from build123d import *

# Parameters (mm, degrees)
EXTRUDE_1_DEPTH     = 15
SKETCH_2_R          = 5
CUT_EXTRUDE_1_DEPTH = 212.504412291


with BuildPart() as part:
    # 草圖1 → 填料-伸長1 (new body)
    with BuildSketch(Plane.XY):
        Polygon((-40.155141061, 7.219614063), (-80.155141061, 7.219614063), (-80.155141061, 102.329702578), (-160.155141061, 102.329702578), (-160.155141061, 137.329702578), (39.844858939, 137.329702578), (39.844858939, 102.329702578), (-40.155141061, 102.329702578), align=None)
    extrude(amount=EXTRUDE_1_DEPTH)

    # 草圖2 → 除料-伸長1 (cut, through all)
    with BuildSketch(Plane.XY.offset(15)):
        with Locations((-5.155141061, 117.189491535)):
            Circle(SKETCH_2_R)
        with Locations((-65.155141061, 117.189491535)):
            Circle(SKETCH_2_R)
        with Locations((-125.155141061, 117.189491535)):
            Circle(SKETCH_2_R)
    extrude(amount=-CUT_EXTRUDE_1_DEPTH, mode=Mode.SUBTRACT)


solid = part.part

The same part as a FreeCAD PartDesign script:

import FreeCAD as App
import Part
import Sketcher
from FreeCAD import Vector
Q = App.Units.Quantity


def add_polygon(sketch, points):
    """Adds a closed chain of lines whose ends are joined by coincident constraints."""
    first, n = sketch.GeometryCount, len(points)
    for a, b in zip(points, points[1:] + points[:1]):
        sketch.addGeometry(Part.LineSegment(App.Vector(*a, 0), App.Vector(*b, 0)), False)
    for i in range(n):
        sketch.addConstraint(Sketcher.Constraint("Coincident", first + i, 2, first + (i + 1) % n, 1))

doc = App.newDocument("Part")
params = doc.addObject("Spreadsheet::Sheet", "Params")
for row, (alias, value) in enumerate([
    ("sketch1_width", "40 mm"),
    ("sketch1_width2", "80 mm"),
    ("sketch1_height", "35 mm"),
    ("pad1_length", "15 mm"),
    ("sketch2_diameter", "10 mm"),
], start=1):
    params.set(f"A{row}", alias)
    params.set(f"B{row}", "=" + value)
    params.setAlias(f"B{row}", alias)

body = doc.addObject("PartDesign::Body", "Body")

sketch1 = body.newObject("Sketcher::SketchObject", "Sketch")
sketch1.AttachmentSupport = (doc.getObject("XY_Plane"), [""])
sketch1.MapMode = "FlatFace"
add_polygon(sketch1, [(-80.155141, 7.219614), (-40.155141, 7.219614), (-40.155141, 102.329703), (39.844859, 102.329703), (39.844859, 137.329703), (-160.155141, 137.329703), (-160.155141, 102.329703), (-80.155141, 102.329703)])
sketch1.addConstraint(Sketcher.Constraint("Horizontal", 0))
sketch1.addConstraint(Sketcher.Constraint("Vertical", 1))
sketch1.addConstraint(Sketcher.Constraint("Horizontal", 2))
sketch1.addConstraint(Sketcher.Constraint("Vertical", 3))
sketch1.addConstraint(Sketcher.Constraint("Horizontal", 4))
sketch1.addConstraint(Sketcher.Constraint("Vertical", 5))
sketch1.addConstraint(Sketcher.Constraint("Horizontal", 6))
sketch1.addConstraint(Sketcher.Constraint("Vertical", 7))
sketch1.addConstraint(Sketcher.Constraint("Horizontal", 2, 2, 5, 2))
sketch1.addConstraint(Sketcher.Constraint("Equal", 2, 6))
sketch1.addConstraint(Sketcher.Constraint("DistanceX", 0, 1, 0, 2, Q("40 mm")))
sketch1.addConstraint(Sketcher.Constraint("DistanceX", 2, 1, 2, 2, Q("80 mm")))
sketch1.addConstraint(Sketcher.Constraint("DistanceY", 3, 1, 3, 2, Q("35 mm")))
sketch1.addConstraint(Sketcher.Constraint("DistanceY", 1, 1, 1, 2, Q("95.110089 mm")))
sketch1.addConstraint(Sketcher.Constraint("DistanceX", 0, 2, -1, 1, Q("40.155141 mm")))
sketch1.addConstraint(Sketcher.Constraint("DistanceY", -1, 1, 0, 2, Q("7.219614 mm")))
sketch1.setExpression("Constraints[18]", "Params.sketch1_width")
sketch1.setExpression("Constraints[19]", "Params.sketch1_width2")
sketch1.setExpression("Constraints[20]", "Params.sketch1_height")
pad1 = body.newObject("PartDesign::Pad", "Pad")
pad1.Profile = sketch1
pad1.setExpression("Length", "Params.pad1_length")

sketch2 = body.newObject("Sketcher::SketchObject", "Sketch001")
sketch2.AttachmentSupport = (doc.getObject("XY_Plane"), [""])
sketch2.MapMode = "FlatFace"
sketch2.AttachmentOffset = App.Placement(Vector(0, 0, 15), App.Rotation())
sketch2.addGeometry(Part.Circle(Vector(-5.155141, 117.189492, 0), Vector(0, 0, 1), 5), False)
sketch2.addGeometry(Part.Circle(Vector(-65.155141, 117.189492, 0), Vector(0, 0, 1), 5), False)
sketch2.addGeometry(Part.Circle(Vector(-125.155141, 117.189492, 0), Vector(0, 0, 1), 5), False)
sketch2.addConstraint(Sketcher.Constraint("Equal", 0, 1))
sketch2.addConstraint(Sketcher.Constraint("Equal", 1, 2))
sketch2.addConstraint(Sketcher.Constraint("Horizontal", 0, 3, 1, 3))
sketch2.addConstraint(Sketcher.Constraint("Horizontal", 1, 3, 2, 3))
sketch2.addConstraint(Sketcher.Constraint("Diameter", 0, Q("10 mm")))
sketch2.addConstraint(Sketcher.Constraint("DistanceX", 1, 3, 0, 3, Q("60 mm")))
sketch2.addConstraint(Sketcher.Constraint("DistanceX", 2, 3, 1, 3, Q("60 mm")))
sketch2.addConstraint(Sketcher.Constraint("DistanceX", 0, 3, -1, 1, Q("5.155141 mm")))
sketch2.addConstraint(Sketcher.Constraint("DistanceY", -1, 1, 0, 3, Q("117.189492 mm")))
sketch2.setExpression("Constraints[4]", "Params.sketch2_diameter")
pocket1 = body.newObject("PartDesign::Pocket", "Pocket")
pocket1.Profile = sketch2
pocket1.Type = "ThroughAll"

doc.recompute()
